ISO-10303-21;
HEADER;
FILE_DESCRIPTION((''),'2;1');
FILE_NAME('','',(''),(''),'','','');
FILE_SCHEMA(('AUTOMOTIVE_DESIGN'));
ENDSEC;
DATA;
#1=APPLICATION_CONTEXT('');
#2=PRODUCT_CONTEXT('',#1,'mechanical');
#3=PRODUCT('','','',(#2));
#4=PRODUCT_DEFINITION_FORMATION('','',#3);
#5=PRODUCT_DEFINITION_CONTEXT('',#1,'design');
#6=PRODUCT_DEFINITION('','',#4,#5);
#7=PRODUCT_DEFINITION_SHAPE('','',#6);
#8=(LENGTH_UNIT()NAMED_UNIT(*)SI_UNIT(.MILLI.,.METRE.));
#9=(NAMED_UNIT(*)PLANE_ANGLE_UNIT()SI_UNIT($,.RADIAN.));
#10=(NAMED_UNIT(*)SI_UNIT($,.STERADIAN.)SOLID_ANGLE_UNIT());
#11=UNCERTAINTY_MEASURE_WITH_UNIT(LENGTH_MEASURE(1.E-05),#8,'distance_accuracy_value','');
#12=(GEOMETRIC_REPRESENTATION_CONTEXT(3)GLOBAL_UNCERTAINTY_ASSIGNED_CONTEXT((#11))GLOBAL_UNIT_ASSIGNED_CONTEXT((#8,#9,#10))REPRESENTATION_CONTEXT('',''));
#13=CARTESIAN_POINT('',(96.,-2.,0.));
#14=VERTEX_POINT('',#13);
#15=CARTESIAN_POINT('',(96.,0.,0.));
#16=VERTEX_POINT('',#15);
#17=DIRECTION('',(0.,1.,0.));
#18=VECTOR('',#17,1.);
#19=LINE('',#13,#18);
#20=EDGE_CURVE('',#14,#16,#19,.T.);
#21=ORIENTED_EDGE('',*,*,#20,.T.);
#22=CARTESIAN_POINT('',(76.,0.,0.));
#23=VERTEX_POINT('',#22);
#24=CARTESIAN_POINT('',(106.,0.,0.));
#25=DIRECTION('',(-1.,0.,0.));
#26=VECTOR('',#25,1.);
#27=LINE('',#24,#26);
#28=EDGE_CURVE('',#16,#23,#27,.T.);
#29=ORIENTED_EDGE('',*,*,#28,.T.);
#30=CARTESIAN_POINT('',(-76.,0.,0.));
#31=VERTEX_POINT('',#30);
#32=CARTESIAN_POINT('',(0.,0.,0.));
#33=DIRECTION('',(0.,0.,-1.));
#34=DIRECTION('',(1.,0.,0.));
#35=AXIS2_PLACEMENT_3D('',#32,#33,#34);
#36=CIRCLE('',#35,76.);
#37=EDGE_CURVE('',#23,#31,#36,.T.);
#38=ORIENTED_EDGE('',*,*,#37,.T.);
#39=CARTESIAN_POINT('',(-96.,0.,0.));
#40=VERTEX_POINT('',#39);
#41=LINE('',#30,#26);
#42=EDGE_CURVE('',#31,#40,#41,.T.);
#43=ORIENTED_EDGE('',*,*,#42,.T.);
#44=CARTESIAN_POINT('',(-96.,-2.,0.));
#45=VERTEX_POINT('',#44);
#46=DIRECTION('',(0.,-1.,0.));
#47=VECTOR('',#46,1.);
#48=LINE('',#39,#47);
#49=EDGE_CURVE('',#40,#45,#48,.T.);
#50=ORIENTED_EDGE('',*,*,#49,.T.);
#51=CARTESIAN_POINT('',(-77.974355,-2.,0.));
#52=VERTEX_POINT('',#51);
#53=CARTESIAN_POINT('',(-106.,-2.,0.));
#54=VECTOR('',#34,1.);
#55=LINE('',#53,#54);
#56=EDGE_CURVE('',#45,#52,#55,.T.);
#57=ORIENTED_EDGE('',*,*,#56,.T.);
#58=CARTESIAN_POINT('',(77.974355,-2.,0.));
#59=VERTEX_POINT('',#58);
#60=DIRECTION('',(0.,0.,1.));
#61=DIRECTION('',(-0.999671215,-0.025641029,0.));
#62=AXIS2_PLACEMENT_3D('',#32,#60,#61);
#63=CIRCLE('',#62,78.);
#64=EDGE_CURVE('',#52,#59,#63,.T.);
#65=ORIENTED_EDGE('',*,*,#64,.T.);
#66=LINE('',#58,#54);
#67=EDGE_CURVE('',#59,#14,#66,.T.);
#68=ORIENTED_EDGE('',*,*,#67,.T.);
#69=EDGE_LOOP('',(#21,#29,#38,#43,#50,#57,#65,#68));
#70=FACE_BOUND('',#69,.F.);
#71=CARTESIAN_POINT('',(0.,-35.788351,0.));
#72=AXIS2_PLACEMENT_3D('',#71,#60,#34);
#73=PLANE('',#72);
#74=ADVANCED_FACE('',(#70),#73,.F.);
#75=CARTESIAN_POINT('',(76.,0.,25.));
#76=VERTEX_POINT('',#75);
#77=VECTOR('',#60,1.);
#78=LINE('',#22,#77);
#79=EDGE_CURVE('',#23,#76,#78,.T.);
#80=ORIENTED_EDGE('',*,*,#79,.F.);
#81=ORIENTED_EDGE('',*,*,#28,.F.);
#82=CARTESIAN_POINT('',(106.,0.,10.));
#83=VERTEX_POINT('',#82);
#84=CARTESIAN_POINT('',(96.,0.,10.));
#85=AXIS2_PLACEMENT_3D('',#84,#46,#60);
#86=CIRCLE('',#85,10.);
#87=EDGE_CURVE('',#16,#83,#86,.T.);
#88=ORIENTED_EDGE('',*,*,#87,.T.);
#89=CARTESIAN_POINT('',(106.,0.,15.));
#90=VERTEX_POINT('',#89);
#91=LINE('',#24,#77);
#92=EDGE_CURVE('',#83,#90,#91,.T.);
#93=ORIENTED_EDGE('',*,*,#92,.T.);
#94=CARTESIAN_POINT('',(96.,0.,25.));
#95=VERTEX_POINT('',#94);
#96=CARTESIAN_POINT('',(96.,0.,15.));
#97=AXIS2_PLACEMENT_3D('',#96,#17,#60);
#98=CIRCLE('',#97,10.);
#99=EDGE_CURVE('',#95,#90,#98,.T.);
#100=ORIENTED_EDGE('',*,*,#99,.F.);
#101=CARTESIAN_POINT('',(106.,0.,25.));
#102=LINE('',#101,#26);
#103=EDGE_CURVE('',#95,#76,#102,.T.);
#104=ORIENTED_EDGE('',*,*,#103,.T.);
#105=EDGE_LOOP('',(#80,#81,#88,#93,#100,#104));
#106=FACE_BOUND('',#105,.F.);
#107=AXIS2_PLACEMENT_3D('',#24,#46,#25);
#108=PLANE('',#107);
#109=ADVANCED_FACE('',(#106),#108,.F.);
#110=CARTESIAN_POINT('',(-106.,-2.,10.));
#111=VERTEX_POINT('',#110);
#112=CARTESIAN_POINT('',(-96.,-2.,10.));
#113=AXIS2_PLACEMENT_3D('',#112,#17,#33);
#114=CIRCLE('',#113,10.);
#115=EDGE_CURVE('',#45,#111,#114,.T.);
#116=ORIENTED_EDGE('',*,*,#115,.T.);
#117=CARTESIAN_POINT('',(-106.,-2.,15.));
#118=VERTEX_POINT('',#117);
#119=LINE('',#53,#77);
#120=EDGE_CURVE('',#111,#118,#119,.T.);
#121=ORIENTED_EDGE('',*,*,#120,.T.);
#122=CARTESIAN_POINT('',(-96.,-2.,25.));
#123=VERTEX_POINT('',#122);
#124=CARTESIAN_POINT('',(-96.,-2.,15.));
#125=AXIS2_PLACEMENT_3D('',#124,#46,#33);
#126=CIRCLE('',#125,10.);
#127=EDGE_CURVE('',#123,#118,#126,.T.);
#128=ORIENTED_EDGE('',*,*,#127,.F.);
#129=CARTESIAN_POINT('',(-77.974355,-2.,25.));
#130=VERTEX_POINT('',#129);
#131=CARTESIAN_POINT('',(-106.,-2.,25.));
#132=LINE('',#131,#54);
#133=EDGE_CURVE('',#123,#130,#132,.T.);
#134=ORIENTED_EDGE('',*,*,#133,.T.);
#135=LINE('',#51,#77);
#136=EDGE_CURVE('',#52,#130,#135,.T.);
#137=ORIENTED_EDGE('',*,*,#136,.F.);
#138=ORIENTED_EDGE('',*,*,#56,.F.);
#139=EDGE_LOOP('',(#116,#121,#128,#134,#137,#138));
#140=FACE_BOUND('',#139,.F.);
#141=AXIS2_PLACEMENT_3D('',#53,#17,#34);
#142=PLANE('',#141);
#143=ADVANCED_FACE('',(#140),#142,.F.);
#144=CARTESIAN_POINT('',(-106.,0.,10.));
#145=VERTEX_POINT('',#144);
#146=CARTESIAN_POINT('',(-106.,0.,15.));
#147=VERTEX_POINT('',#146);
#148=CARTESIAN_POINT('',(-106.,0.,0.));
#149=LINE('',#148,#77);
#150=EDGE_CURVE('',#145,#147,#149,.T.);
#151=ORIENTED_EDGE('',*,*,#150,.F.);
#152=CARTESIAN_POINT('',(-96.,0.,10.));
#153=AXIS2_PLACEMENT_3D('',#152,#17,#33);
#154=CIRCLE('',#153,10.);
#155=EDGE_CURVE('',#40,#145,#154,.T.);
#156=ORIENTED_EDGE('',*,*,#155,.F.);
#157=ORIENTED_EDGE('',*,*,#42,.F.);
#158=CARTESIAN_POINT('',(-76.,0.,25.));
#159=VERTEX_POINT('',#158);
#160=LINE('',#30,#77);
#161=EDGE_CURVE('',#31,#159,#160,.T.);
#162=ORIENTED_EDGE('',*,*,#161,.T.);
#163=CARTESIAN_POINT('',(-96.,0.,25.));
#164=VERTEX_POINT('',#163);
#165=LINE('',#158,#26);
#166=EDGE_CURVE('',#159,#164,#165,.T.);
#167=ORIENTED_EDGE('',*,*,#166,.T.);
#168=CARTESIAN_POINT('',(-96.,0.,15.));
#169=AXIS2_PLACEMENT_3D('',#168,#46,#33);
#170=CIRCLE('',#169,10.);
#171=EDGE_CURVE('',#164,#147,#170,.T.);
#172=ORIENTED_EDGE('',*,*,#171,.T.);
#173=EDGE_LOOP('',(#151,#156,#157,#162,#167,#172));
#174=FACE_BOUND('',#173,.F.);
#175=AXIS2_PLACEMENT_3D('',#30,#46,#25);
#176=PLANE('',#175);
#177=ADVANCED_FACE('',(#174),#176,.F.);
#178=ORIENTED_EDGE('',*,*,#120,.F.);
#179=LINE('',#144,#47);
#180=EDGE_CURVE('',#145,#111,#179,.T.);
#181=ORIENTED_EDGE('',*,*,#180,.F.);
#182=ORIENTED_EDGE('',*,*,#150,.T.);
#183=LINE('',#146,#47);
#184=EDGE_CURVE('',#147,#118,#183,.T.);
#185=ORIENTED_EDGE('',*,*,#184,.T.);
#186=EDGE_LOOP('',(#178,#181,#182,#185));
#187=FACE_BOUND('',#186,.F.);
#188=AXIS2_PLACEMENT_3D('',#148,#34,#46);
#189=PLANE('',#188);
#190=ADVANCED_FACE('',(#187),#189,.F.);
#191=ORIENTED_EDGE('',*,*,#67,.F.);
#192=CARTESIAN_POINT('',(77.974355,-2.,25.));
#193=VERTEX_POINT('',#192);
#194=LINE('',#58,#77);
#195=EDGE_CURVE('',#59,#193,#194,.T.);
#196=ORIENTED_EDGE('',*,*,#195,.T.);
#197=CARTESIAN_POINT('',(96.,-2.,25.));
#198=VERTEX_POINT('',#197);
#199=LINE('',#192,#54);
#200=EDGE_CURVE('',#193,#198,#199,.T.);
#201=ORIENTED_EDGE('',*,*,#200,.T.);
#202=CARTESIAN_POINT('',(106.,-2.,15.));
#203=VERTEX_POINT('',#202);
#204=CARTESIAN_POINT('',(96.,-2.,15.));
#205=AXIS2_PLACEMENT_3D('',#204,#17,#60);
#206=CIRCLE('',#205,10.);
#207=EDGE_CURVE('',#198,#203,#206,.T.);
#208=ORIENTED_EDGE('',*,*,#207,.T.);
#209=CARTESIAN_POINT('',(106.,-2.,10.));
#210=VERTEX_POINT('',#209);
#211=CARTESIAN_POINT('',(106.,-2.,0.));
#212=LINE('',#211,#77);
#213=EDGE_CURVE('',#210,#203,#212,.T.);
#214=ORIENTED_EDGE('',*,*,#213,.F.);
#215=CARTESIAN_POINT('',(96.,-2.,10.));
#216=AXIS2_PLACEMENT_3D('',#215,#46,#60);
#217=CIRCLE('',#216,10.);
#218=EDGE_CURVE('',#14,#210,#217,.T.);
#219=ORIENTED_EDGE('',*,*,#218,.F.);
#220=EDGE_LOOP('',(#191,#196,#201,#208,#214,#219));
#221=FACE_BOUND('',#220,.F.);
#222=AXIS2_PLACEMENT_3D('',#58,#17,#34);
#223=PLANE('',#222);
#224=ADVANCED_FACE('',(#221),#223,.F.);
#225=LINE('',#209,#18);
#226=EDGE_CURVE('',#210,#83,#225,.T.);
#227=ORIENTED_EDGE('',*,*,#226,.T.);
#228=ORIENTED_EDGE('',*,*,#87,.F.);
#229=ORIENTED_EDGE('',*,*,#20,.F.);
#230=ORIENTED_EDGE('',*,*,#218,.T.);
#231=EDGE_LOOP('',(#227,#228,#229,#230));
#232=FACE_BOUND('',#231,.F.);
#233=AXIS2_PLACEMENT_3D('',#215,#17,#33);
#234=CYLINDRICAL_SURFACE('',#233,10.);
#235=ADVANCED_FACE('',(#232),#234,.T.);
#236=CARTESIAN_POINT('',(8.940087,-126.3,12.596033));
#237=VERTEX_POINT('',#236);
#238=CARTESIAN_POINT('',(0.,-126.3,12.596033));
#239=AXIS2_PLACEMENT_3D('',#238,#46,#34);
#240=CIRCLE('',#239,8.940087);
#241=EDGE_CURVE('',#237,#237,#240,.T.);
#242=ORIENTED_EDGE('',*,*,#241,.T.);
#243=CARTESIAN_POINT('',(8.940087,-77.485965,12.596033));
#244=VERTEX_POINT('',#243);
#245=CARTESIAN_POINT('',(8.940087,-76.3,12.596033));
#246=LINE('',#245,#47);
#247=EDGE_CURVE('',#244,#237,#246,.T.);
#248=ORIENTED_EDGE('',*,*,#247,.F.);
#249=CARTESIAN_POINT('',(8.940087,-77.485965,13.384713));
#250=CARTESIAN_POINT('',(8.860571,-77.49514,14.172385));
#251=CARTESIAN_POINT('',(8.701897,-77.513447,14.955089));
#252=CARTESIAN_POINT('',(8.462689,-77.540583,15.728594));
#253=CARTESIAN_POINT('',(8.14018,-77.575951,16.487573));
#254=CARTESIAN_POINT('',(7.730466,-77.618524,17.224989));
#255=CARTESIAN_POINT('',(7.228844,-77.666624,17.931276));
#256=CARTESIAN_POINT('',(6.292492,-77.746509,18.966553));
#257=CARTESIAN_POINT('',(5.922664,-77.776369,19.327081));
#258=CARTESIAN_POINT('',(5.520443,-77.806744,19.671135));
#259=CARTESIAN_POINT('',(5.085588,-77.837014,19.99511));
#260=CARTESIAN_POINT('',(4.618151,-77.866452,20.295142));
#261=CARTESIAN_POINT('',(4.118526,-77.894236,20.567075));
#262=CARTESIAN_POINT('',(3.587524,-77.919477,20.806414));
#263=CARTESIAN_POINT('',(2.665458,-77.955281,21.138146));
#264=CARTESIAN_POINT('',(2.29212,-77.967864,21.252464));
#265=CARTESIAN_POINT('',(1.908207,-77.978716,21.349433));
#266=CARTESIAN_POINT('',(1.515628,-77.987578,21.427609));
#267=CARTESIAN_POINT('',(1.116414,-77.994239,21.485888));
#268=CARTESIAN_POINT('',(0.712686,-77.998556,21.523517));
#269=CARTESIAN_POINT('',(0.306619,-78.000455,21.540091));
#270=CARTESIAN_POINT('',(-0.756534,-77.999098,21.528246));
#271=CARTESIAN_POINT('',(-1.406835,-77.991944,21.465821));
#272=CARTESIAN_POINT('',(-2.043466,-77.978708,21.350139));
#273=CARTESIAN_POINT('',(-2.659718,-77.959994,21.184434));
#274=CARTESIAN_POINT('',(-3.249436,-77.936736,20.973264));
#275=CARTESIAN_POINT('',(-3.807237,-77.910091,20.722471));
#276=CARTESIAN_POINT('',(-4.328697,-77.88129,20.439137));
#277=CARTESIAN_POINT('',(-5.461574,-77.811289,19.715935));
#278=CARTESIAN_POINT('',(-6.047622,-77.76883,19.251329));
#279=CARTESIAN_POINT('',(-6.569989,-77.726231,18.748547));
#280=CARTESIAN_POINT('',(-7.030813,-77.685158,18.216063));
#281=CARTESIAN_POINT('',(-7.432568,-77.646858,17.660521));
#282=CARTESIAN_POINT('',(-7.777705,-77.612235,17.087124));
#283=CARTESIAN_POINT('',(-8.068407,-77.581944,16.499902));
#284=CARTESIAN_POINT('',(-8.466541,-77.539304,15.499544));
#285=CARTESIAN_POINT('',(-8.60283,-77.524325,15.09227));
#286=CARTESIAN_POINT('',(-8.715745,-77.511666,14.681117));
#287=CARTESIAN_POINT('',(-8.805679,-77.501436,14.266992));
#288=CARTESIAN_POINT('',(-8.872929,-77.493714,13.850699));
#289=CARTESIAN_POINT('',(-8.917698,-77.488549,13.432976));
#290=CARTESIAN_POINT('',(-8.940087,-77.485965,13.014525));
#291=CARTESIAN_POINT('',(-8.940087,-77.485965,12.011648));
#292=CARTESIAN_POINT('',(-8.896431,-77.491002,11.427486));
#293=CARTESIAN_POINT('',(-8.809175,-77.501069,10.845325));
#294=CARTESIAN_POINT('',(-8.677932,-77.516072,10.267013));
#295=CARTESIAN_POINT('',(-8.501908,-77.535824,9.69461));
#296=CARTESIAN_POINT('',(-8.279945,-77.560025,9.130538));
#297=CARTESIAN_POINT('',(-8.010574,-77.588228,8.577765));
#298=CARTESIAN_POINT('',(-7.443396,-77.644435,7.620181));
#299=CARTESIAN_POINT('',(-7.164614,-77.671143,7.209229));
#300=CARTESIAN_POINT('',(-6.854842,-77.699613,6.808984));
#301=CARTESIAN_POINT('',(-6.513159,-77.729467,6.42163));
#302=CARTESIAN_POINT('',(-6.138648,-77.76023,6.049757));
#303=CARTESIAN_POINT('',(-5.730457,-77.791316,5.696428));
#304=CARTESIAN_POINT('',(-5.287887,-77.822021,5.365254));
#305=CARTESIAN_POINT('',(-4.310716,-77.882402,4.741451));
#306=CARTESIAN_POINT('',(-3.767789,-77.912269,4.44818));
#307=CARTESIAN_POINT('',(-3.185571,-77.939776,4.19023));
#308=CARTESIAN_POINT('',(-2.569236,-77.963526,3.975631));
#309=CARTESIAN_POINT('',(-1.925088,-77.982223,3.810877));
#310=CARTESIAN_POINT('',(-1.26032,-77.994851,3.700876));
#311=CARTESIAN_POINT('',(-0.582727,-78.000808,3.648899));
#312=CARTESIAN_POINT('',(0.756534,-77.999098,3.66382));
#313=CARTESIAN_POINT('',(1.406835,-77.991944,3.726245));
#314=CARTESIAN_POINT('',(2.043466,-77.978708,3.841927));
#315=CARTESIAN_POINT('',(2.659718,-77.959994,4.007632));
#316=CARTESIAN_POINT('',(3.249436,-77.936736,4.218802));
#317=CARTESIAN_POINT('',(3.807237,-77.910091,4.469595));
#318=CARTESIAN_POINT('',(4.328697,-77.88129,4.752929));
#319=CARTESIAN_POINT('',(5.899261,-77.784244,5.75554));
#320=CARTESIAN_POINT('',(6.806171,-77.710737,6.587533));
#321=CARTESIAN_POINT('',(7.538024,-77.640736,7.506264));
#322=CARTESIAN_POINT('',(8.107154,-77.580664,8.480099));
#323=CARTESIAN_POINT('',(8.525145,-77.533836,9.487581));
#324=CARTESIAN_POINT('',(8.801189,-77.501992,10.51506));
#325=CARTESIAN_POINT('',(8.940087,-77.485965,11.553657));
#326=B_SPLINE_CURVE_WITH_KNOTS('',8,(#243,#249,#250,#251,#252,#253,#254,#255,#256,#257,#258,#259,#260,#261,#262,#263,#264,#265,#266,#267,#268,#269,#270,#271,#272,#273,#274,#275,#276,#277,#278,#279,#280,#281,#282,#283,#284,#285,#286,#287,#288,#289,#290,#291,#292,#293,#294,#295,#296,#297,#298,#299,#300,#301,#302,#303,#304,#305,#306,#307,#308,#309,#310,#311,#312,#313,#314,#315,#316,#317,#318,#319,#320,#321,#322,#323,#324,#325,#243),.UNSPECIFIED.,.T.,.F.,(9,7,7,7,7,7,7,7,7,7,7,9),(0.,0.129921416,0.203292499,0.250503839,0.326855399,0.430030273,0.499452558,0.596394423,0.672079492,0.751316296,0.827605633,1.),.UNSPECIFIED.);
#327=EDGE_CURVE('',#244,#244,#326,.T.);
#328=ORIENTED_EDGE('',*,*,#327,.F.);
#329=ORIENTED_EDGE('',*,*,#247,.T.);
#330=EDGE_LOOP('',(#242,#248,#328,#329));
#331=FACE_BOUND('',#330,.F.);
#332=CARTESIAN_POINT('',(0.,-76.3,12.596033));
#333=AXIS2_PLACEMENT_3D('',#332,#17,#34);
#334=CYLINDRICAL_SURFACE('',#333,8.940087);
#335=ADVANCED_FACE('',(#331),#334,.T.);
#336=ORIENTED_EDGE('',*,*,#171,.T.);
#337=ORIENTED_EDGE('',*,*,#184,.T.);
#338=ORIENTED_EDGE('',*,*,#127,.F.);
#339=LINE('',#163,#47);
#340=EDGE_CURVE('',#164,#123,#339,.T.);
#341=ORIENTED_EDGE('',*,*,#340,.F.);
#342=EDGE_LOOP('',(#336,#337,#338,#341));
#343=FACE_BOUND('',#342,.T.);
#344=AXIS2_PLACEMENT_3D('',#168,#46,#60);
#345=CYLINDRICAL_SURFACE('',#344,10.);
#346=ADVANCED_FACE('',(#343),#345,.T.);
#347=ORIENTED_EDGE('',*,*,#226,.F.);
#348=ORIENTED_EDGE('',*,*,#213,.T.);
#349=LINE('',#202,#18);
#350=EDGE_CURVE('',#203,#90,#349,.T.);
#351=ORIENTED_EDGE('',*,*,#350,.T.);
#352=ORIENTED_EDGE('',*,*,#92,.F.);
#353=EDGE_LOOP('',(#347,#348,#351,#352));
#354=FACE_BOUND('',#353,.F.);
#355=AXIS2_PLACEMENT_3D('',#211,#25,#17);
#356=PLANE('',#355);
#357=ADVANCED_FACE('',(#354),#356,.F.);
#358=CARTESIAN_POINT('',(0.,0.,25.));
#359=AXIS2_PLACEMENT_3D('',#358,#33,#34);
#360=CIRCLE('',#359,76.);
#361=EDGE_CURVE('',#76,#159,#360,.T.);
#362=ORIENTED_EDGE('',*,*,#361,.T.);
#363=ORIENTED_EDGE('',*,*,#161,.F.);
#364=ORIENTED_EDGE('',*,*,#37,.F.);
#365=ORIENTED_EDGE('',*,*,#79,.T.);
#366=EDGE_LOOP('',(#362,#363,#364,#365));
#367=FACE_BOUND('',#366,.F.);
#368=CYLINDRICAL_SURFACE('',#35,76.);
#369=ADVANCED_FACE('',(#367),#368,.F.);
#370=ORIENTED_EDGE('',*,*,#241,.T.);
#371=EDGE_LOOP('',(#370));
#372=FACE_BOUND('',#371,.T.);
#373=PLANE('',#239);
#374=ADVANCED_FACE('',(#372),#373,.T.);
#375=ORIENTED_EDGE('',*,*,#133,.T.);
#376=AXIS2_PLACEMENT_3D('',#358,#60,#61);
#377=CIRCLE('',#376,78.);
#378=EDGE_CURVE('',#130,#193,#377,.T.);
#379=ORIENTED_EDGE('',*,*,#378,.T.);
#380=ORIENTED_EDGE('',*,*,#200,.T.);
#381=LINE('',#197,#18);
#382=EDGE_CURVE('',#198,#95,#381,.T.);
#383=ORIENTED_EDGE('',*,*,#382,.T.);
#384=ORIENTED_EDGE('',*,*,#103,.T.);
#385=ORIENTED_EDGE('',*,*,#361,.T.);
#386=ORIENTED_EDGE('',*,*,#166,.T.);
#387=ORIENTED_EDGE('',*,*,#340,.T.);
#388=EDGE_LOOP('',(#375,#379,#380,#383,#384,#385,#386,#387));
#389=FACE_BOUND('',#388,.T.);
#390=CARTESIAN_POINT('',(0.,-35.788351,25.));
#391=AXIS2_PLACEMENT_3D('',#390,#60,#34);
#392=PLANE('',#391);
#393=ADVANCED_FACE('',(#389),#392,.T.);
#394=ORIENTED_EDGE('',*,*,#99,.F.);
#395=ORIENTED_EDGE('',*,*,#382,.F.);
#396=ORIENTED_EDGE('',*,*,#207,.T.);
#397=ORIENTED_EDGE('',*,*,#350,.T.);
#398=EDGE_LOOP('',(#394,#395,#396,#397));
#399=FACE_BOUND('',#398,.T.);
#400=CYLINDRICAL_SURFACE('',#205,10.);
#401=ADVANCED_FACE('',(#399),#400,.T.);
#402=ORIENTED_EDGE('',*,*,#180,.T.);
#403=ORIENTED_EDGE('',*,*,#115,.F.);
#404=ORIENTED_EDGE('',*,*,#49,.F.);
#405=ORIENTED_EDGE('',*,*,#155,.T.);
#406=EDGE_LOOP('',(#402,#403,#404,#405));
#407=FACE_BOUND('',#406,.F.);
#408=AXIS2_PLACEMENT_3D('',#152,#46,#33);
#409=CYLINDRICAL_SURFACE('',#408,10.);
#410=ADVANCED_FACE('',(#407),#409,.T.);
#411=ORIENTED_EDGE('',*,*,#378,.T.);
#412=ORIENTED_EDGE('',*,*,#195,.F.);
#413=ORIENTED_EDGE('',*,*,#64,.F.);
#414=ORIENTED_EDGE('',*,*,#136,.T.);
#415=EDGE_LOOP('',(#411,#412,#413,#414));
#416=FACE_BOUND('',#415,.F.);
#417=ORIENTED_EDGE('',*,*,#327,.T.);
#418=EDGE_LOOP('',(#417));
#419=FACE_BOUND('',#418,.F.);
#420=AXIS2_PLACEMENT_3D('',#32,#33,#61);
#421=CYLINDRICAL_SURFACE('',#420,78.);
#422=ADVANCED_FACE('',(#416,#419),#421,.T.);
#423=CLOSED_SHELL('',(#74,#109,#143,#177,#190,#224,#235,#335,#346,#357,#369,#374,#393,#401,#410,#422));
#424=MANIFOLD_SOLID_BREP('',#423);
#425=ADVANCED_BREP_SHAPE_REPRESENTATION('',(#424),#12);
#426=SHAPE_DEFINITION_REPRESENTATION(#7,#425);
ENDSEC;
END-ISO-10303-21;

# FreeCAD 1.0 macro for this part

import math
import FreeCAD as App
import Part
import Sketcher
from FreeCAD import Vector
Q = App.Units.Quantity


def edges_at(feature, points):
    """Names of the edges that pass closest to the given points."""
    edges = feature.Shape.Edges
    near = lambda p: min(range(len(edges)), key=lambda i: edges[i].distToShape(Part.Vertex(*p))[0])
    return sorted({f"Edge{near(p) + 1}" for p in points})

doc = App.newDocument("Part")
body = doc.addObject("PartDesign::Body", "Body")

sketch1 = doc.addObject("Sketcher::SketchObject", "Sketch")
body.addObject(sketch1)
sketch1.AttachmentSupport = (doc.XY_Plane, [""])
sketch1.MapMode = "FlatFace"
sketch1.addGeometry([
    Part.ArcOfCircle(Part.Circle(Vector(0, 0, 0), Vector(0, 0, 1), 76), math.radians(180), math.radians(360)),
    Part.LineSegment(Vector(-76, 0, 0), Vector(-106, 0, 0)),
    Part.LineSegment(Vector(-106, 0, 0), Vector(-106, -2, 0)),
    Part.LineSegment(Vector(-106, -2, 0), Vector(-78, -2, 0)),
    Part.ArcOfCircle(Part.Circle(Vector(0, 0, 0), Vector(0, 0, 1), 78), math.radians(-179), math.radians(-1)),
    Part.LineSegment(Vector(78, -2, 0), Vector(106, -2, 0)),
    Part.LineSegment(Vector(106, -2, 0), Vector(106, 0, 0)),
    Part.LineSegment(Vector(106, 0, 0), Vector(76, 0, 0)),
], False)
sketch1.addConstraint([
    Sketcher.Constraint("Coincident", 0, 1, 1, 1),
    Sketcher.Constraint("Coincident", 1, 2, 2, 1),
    Sketcher.Constraint("Coincident", 2, 2, 3, 1),
    Sketcher.Constraint("Coincident", 3, 2, 4, 1),
    Sketcher.Constraint("Coincident", 4, 2, 5, 1),
    Sketcher.Constraint("Coincident", 5, 2, 6, 1),
    Sketcher.Constraint("Coincident", 6, 2, 7, 1),
    Sketcher.Constraint("Coincident", 7, 2, 0, 2),
    Sketcher.Constraint("Horizontal", 1),
    Sketcher.Constraint("Vertical", 2),
    Sketcher.Constraint("Horizontal", 3),
    Sketcher.Constraint("Horizontal", 5),
    Sketcher.Constraint("Vertical", 6),
    Sketcher.Constraint("Horizontal", 7),
    Sketcher.Constraint("Coincident", 0, 3, -1, 1),
    Sketcher.Constraint("Coincident", 4, 3, -1, 1),
    Sketcher.Constraint("Symmetric", 1, 2, 6, 2, -1, 1),
    Sketcher.Constraint("PointOnObject", 0, 1, -1),
    Sketcher.Constraint("Horizontal", 3, 2, 4, 2),
    Sketcher.Constraint("Radius", 0, Q("76 mm")),
    Sketcher.Constraint("Radius", 4, Q("78 mm")),
    Sketcher.Constraint("DistanceX", 1, 2, 1, 1, Q("30 mm")),
    Sketcher.Constraint("DistanceY", 2, 2, 2, 1, Q("2 mm")),
])
pad1 = doc.addObject("PartDesign::Pad", "Pad")
body.addObject(pad1)
pad1.Profile = sketch1
pad1.Length = 25

sketch2 = doc.addObject("Sketcher::SketchObject", "Sketch001")
body.addObject(sketch2)
sketch2.AttachmentSupport = (doc.XZ_Plane, [""])
sketch2.MapMode = "FlatFace"
sketch2.AttachmentOffset = App.Placement(Vector(0, 0, 76.3), App.Rotation())
sketch2.addGeometry(Part.Circle(Vector(0, 13, 0), Vector(0, 0, 1), 9), False)
sketch2.addConstraint([
    Sketcher.Constraint("PointOnObject", 0, 3, -2),
    Sketcher.Constraint("Diameter", 0, Q("17.880174 mm")),
    Sketcher.Constraint("DistanceY", -1, 1, 0, 3, Q("12.596033 mm")),
])
pad2 = doc.addObject("PartDesign::Pad", "Pad001")
body.addObject(pad2)
pad2.Profile = sketch2
pad2.Length = 50
doc.recompute()

fillet = doc.addObject("PartDesign::Fillet", "Fillet")
body.addObject(fillet)
fillet.Base = (pad2, edges_at(pad2, [
    (106, -1, 25),
    (106, -1, 0),
    (-106, -1, 25),
    (-106, -1, 0),
]))
fillet.Radius = 10

doc.recompute()
